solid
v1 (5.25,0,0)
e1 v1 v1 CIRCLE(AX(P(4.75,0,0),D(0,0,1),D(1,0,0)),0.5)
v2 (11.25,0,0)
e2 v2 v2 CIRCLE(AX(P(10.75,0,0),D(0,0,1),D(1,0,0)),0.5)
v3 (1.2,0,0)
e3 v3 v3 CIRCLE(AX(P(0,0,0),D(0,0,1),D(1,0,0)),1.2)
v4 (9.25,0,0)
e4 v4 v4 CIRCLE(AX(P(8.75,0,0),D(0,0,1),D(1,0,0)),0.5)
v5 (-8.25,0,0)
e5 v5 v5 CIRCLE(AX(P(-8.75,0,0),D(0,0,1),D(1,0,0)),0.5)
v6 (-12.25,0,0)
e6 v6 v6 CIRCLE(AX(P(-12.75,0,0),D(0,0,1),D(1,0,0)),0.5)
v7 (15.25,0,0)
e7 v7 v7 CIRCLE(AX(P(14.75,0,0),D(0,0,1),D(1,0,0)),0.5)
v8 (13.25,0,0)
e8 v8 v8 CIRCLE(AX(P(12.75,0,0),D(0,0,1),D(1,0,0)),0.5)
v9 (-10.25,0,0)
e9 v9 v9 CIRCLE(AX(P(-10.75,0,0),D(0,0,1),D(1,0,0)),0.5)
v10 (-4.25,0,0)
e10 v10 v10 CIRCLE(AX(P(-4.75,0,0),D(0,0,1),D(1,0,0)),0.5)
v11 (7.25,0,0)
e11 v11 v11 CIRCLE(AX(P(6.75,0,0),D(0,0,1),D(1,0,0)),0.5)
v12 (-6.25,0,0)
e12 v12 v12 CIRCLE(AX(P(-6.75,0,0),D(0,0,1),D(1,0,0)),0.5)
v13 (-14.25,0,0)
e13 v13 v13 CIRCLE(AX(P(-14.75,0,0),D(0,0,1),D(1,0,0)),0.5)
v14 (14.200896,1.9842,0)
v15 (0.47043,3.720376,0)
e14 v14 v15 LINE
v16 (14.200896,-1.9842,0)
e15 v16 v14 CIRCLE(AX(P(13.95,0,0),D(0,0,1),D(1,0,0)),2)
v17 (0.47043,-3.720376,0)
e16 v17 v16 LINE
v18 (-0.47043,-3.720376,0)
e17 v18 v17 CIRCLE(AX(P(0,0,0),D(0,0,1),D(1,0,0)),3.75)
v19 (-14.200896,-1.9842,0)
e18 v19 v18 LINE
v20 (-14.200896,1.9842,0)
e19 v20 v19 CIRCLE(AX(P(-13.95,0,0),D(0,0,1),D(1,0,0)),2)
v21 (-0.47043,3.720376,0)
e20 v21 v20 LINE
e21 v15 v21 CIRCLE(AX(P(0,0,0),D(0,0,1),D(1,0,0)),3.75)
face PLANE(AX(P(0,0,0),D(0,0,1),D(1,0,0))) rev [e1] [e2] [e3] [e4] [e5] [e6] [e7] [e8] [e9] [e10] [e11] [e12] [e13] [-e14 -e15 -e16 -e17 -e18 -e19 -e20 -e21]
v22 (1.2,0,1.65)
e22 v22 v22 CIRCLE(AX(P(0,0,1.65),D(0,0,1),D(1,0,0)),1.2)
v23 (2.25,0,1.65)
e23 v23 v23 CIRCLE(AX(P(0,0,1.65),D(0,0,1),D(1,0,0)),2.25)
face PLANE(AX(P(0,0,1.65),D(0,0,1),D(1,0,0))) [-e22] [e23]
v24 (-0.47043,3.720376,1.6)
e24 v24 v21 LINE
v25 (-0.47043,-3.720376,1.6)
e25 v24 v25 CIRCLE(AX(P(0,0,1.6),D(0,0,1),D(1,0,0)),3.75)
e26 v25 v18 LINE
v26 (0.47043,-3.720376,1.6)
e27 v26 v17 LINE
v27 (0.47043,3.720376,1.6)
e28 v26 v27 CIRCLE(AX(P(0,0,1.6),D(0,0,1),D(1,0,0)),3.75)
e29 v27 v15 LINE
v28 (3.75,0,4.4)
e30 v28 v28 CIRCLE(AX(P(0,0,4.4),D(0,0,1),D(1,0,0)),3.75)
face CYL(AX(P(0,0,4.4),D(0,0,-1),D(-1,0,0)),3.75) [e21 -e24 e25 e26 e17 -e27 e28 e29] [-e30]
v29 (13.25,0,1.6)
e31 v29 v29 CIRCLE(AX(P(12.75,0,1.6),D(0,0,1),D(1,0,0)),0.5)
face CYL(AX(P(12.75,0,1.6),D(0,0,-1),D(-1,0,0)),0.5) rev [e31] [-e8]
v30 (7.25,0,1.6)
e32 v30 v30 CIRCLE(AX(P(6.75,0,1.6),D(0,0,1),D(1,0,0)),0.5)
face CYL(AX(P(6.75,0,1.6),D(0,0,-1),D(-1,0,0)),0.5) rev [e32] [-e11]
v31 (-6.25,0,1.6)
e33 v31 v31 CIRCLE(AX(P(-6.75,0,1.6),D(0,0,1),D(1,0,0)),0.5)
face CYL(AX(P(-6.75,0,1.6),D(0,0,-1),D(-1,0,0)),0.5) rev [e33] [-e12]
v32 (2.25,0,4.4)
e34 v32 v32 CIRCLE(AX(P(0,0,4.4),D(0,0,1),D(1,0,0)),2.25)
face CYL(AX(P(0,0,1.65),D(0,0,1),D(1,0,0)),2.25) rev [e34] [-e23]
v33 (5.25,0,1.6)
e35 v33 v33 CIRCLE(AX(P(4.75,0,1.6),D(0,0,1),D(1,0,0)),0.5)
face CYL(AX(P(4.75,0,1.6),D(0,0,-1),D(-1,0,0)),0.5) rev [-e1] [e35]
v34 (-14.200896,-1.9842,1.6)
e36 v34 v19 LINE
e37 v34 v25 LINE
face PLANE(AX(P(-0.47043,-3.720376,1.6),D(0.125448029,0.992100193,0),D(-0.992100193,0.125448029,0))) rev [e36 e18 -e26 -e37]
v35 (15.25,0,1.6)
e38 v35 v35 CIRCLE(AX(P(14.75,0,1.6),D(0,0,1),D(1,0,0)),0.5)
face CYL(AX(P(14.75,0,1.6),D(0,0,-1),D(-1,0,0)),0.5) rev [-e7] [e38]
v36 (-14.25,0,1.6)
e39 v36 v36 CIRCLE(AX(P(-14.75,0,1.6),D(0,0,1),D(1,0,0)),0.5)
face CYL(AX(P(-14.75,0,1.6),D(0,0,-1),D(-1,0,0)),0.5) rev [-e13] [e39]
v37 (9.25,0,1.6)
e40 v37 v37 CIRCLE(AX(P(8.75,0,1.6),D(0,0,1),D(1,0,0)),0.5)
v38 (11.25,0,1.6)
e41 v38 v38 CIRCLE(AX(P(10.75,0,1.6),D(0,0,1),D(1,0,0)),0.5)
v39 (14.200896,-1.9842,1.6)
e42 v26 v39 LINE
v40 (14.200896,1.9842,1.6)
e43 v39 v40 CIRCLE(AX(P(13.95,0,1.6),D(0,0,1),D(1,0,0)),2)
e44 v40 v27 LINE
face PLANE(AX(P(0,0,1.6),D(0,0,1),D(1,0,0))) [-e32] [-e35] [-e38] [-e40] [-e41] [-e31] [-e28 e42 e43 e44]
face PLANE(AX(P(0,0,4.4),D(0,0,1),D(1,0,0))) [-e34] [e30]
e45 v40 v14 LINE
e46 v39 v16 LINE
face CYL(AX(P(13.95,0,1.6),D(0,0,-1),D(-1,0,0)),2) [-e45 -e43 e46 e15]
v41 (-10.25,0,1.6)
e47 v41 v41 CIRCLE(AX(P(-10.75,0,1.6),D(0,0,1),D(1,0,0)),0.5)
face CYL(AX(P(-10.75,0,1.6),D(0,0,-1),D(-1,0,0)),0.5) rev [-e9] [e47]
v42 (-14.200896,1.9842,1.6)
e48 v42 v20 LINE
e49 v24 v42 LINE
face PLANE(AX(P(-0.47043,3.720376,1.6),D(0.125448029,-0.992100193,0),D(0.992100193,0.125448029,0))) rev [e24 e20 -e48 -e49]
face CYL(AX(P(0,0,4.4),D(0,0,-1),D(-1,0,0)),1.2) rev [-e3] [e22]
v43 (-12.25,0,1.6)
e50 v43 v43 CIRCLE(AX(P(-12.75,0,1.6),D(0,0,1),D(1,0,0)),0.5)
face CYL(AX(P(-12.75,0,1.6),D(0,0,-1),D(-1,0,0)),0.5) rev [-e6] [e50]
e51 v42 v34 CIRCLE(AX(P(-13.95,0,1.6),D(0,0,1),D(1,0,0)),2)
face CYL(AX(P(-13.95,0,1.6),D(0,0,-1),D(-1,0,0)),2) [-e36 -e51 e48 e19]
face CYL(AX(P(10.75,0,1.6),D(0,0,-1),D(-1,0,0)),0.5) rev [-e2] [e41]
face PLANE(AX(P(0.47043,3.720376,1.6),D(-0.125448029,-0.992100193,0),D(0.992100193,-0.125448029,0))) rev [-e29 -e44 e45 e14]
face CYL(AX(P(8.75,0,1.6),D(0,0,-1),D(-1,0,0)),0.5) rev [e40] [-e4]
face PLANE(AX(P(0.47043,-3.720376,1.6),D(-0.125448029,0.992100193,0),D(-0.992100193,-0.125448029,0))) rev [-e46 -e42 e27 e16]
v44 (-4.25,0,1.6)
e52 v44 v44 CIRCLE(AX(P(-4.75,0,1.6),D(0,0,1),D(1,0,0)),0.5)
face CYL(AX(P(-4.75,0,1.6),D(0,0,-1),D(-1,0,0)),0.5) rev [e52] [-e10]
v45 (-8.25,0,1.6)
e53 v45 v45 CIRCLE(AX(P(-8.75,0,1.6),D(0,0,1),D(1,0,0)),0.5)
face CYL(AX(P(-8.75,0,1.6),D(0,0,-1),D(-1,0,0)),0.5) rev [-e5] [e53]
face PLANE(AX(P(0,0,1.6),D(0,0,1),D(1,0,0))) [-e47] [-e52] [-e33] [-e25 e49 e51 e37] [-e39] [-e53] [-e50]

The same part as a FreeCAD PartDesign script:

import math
import FreeCAD as App
import Part
import Sketcher

V = App.Vector

doc = App.newDocument("Part")
body = doc.addObject("PartDesign::Body", "Body")
body.AllowCompound = True

# Sketch on XY plane
sketch1 = body.newObject("Sketcher::SketchObject", "Sketch")
sketch1.AttachmentSupport = (doc.getObject("XY_Plane"), [""])
sketch1.MapMode = "FlatFace"
sketch1.addGeometry([
    Part.ArcOfCircle(Part.Circle(V(0, 0, 0), V(0, 0, 1), 3.8), math.radians(97), math.radians(180)),  # 0
    Part.LineSegment(V(-0.5, 3.7, 0), V(-14.2, 2, 0)),  # 1
    Part.ArcOfCircle(Part.Circle(V(-13.9, 0, 0), V(0, 0, 1), 2), math.radians(97), math.radians(180)),  # 2
    Part.ArcOfCircle(Part.Circle(V(-13.9, 0, 0), V(0, 0, 1), 2), math.radians(-180), math.radians(-97)),  # 3
    Part.LineSegment(V(-14.2, -2, 0), V(-0.5, -3.7, 0)),  # 4
    Part.ArcOfCircle(Part.Circle(V(0, 0, 0), V(0, 0, 1), 3.8), math.radians(180), math.radians(263)),  # 5
    Part.Circle(V(-14.8, 0, 0), V(0, 0, 1), 0.5),  # 6
    Part.Circle(V(-12.8, 0, 0), V(0, 0, 1), 0.5),  # 7
    Part.Circle(V(-10.8, 0, 0), V(0, 0, 1), 0.5),  # 8
    Part.Circle(V(-8.8, 0, 0), V(0, 0, 1), 0.5),  # 9
    Part.Circle(V(-6.8, 0, 0), V(0, 0, 1), 0.5),  # 10
    Part.Circle(V(-4.8, 0, 0), V(0, 0, 1), 0.5),  # 11
    Part.ArcOfCircle(Part.Circle(V(0, 0, 0), V(0, 0, 1), 3.8), math.radians(0), math.radians(83)),  # 12
    Part.ArcOfCircle(Part.Circle(V(0, 0, 0), V(0, 0, 1), 3.8), math.radians(-83), math.radians(0)),  # 13
    Part.LineSegment(V(0.5, -3.7, 0), V(14.2, -2, 0)),  # 14
    Part.ArcOfCircle(Part.Circle(V(13.9, 0, 0), V(0, 0, 1), 2), math.radians(-83), math.radians(0)),  # 15
    Part.ArcOfCircle(Part.Circle(V(13.9, 0, 0), V(0, 0, 1), 2), math.radians(0), math.radians(83)),  # 16
    Part.LineSegment(V(14.2, 2, 0), V(0.5, 3.7, 0)),  # 17
    Part.Circle(V(4.8, 0, 0), V(0, 0, 1), 0.5),  # 18
    Part.Circle(V(6.8, 0, 0), V(0, 0, 1), 0.5),  # 19
    Part.Circle(V(8.8, 0, 0), V(0, 0, 1), 0.5),  # 20
    Part.Circle(V(10.8, 0, 0), V(0, 0, 1), 0.5),  # 21
    Part.Circle(V(12.8, 0, 0), V(0, 0, 1), 0.5),  # 22
    Part.Circle(V(14.8, 0, 0), V(0, 0, 1), 0.5),  # 23
], False)
sketch1.addConstraint([
    Sketcher.Constraint("Tangent", 0, 1, 1, 1),
    Sketcher.Constraint("Tangent", 1, 2, 2, 1),
    Sketcher.Constraint("Tangent", 2, 2, 3, 1),
    Sketcher.Constraint("Tangent", 3, 2, 4, 1),
    Sketcher.Constraint("Tangent", 4, 2, 5, 2),
    Sketcher.Constraint("Tangent", 5, 1, 0, 2),
    Sketcher.Constraint("Tangent", 12, 1, 13, 2),
    Sketcher.Constraint("Tangent", 13, 1, 14, 1),
    Sketcher.Constraint("Tangent", 14, 2, 15, 1),
    Sketcher.Constraint("Tangent", 15, 2, 16, 1),
    Sketcher.Constraint("Tangent", 16, 2, 17, 1),
    Sketcher.Constraint("Tangent", 17, 2, 12, 2),
    Sketcher.Constraint("Coincident", 0, 3, -1, 1),
    Sketcher.Constraint("Coincident", 12, 3, -1, 1),
    Sketcher.Constraint("Equal", 2, 3),
    Sketcher.Constraint("Equal", 0, 5),
    Sketcher.Constraint("Equal", 6, 7),
    Sketcher.Constraint("Equal", 7, 8),
    Sketcher.Constraint("Equal", 8, 9),
    Sketcher.Constraint("Equal", 9, 10),
    Sketcher.Constraint("Equal", 10, 11),
    Sketcher.Constraint("Equal", 5, 12),
    Sketcher.Constraint("Equal", 12, 13),
    Sketcher.Constraint("Equal", 3, 15),
    Sketcher.Constraint("Equal", 15, 16),
    Sketcher.Constraint("Equal", 11, 18),
    Sketcher.Constraint("Equal", 18, 19),
    Sketcher.Constraint("Equal", 19, 20),
    Sketcher.Constraint("Equal", 20, 21),
    Sketcher.Constraint("Equal", 21, 22),
    Sketcher.Constraint("Equal", 22, 23),
    Sketcher.Constraint("Symmetric", 2, 3, 15, 3, -1, 1),
    Sketcher.Constraint("Symmetric", 11, 3, 18, 3, -1, 1),
    Sketcher.Constraint("Symmetric", 10, 3, 19, 3, -1, 1),
    Sketcher.Constraint("Symmetric", 9, 3, 20, 3, -1, 1),
    Sketcher.Constraint("Symmetric", 8, 3, 21, 3, -1, 1),
    Sketcher.Constraint("Symmetric", 7, 3, 22, 3, -1, 1),
    Sketcher.Constraint("Symmetric", 6, 3, 23, 3, -1, 1),
    Sketcher.Constraint("PointOnObject", 2, 3, -1),
    Sketcher.Constraint("PointOnObject", 6, 3, -1),
    Sketcher.Constraint("PointOnObject", 7, 3, -1),
    Sketcher.Constraint("PointOnObject", 8, 3, -1),
    Sketcher.Constraint("PointOnObject", 9, 3, -1),
    Sketcher.Constraint("PointOnObject", 10, 3, -1),
    Sketcher.Constraint("PointOnObject", 11, 3, -1),
    Sketcher.Constraint("PointOnObject", 2, 2, -1),
    Sketcher.Constraint("PointOnObject", 5, 1, -1),
    Sketcher.Constraint("PointOnObject", 12, 1, -1),
    Sketcher.Constraint("PointOnObject", 15, 2, -1),
    Sketcher.Constraint("Diameter", 6, 1.0),
    Sketcher.Constraint("Radius", 2, 2.0),
    Sketcher.Constraint("Radius", 0, 3.75),
    Sketcher.Constraint("DistanceX", 6, 3, 7, 3, 2.0),
    Sketcher.Constraint("DistanceX", 7, 3, 8, 3, 2.0),
    Sketcher.Constraint("DistanceX", 8, 3, 9, 3, 2.0),
    Sketcher.Constraint("DistanceX", 9, 3, 10, 3, 2.0),
    Sketcher.Constraint("DistanceX", 10, 3, 11, 3, 2.0),
    Sketcher.Constraint("DistanceX", 11, 3, 5, 1, 1.0),
    Sketcher.Constraint("DistanceX", 6, 3, 2, 3, 0.8),
])
pad1 = body.newObject("PartDesign::Pad", "Pad")
pad1.Profile = sketch1
pad1.Length = 1.6

# Sketch on XY plane
sketch2 = body.newObject("Sketcher::SketchObject", "Sketch001")
sketch2.AttachmentSupport = (doc.getObject("XY_Plane"), [""])
sketch2.MapMode = "FlatFace"
sketch2.addGeometry([
    Part.ArcOfCircle(Part.Circle(V(0, 0, 0), V(0, 0, 1), 3.7), math.radians(-97.21), math.radians(-82.79)),  # 0
    Part.ArcOfCircle(Part.Circle(V(0, 0, 0), V(0, 0, 1), 3.8), math.radians(-83), math.radians(0)),  # 1
    Part.ArcOfCircle(Part.Circle(V(0, 0, 0), V(0, 0, 1), 3.8), math.radians(0), math.radians(83)),  # 2
    Part.ArcOfCircle(Part.Circle(V(0, 0, 0), V(0, 0, 1), 3.7), math.radians(82.79), math.radians(97.21)),  # 3
    Part.ArcOfCircle(Part.Circle(V(0, 0, 0), V(0, 0, 1), 3.8), math.radians(97), math.radians(180)),  # 4
    Part.ArcOfCircle(Part.Circle(V(0, 0, 0), V(0, 0, 1), 3.8), math.radians(180), math.radians(263)),  # 5
    Part.Circle(V(0, 0, 0), V(0, 0, 1), 1.2),  # 6
], False)
sketch2.addConstraint([
    Sketcher.Constraint("Tangent", 0, 2, 1, 1),
    Sketcher.Constraint("Tangent", 1, 2, 2, 1),
    Sketcher.Constraint("Tangent", 2, 2, 3, 1),
    Sketcher.Constraint("Tangent", 3, 2, 4, 1),
    Sketcher.Constraint("Tangent", 4, 2, 5, 1),
    Sketcher.Constraint("Tangent", 5, 2, 0, 1),
    Sketcher.Constraint("Coincident", 0, 3, -1, 1),
    Sketcher.Constraint("Coincident", 2, 3, -1, 1),
    Sketcher.Constraint("Coincident", 6, 3, -1, 1),
    Sketcher.Constraint("Equal", 2, 3),
    Sketcher.Constraint("PointOnObject", 1, 2, -1),
    Sketcher.Constraint("PointOnObject", 4, 2, -1),
    Sketcher.Constraint("Horizontal", 2, 2, 3, 2),
    Sketcher.Constraint("Horizontal", 0, 2, 5, 2),
    Sketcher.Constraint("Vertical", 0, 2, 2, 2),
    Sketcher.Constraint("Diameter", 6, 2.4),
    Sketcher.Constraint("Radius", 0, 3.75),
    Sketcher.Constraint("DistanceX", -1, 1, 0, 2, 0.47043),
])
pad2 = body.newObject("PartDesign::Pad", "Pad001")
pad2.Profile = sketch2
pad2.Length = 4.4

# Sketch on XY plane
sketch3 = body.newObject("Sketcher::SketchObject", "Sketch002")
sketch3.AttachmentSupport = (doc.getObject("XY_Plane"), [""])
sketch3.MapMode = "FlatFace"
sketch3.AttachmentOffset = App.Placement(V(0, 0, 4.4), App.Rotation())
sketch3.addGeometry(Part.Circle(V(0, 0, 0), V(0, 0, 1), 2.2), False)
sketch3.addConstraint([
    Sketcher.Constraint("Coincident", 0, 3, -1, 1),
    Sketcher.Constraint("Diameter", 0, 4.5),
])
pocket1 = body.newObject("PartDesign::Pocket", "Pocket")
pocket1.Profile = sketch3
pocket1.Length = 2.75

doc.recompute()
